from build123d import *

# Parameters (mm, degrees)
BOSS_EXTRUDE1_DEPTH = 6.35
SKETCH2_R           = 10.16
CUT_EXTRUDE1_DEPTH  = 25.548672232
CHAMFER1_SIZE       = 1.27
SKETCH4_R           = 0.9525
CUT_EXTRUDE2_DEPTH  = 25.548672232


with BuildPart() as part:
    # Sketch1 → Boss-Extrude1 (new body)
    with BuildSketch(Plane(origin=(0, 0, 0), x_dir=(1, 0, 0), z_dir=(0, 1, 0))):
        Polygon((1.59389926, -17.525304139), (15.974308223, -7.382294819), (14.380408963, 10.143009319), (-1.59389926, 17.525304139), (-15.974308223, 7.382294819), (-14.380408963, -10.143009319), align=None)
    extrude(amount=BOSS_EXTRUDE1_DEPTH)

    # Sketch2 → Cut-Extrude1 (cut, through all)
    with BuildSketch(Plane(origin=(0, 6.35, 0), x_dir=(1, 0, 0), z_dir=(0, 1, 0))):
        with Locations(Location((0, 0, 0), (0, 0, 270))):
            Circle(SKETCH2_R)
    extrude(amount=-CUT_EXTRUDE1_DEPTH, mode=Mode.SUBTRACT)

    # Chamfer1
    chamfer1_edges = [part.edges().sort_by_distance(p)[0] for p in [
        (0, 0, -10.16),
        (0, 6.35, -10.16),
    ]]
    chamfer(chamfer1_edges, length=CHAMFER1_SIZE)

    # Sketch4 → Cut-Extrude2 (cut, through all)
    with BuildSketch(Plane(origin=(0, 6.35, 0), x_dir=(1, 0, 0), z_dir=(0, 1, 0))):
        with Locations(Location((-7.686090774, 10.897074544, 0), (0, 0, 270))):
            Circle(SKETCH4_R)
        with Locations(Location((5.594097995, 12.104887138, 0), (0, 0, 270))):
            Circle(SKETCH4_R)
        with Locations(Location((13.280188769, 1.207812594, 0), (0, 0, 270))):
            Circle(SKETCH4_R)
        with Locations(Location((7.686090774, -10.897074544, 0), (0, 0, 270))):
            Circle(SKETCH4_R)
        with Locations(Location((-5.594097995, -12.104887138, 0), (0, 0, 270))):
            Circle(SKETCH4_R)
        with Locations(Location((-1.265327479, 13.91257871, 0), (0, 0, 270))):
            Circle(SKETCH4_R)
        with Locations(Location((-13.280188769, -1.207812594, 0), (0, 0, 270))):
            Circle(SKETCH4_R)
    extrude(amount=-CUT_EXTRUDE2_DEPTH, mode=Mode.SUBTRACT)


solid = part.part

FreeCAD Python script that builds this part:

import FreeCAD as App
import Part
import Sketcher

V = App.Vector
Q = App.Units.Quantity


def edges_at(feature, points):
    """Names of the edges that pass closest to the given points."""
    edges = feature.Shape.Edges
    near = lambda p: min(range(len(edges)), key=lambda i: edges[i].distToShape(Part.Vertex(*p))[0])
    return sorted({f"Edge{near(p) + 1}" for p in points})

doc = App.newDocument("Part")
body = doc.addObject("PartDesign::Body", "Body")

sketch1 = doc.addObject("Sketcher::SketchObject", "Sketch")
body.addObject(sketch1)
sketch1.AttachmentSupport = (doc.XZ_Plane, [""])
sketch1.MapMode = "FlatFace"
sketch1.addGeometry([
    Part.LineSegment(V(1.593899, 17.525304, 0), V(15.974308, 7.382295, 0)),
    Part.LineSegment(V(15.974308, 7.382295, 0), V(14.380409, -10.143009, 0)),
    Part.LineSegment(V(14.380409, -10.143009, 0), V(-1.593899, -17.525304, 0)),
    Part.LineSegment(V(-1.593899, -17.525304, 0), V(-15.974308, -7.382295, 0)),
    Part.LineSegment(V(-15.974308, -7.382295, 0), V(-14.380409, 10.143009, 0)),
    Part.LineSegment(V(-14.380409, 10.143009, 0), V(1.593899, 17.525304, 0)),
], False)
sketch1.addConstraint([
    Sketcher.Constraint("Coincident", 0, 2, 1, 1),
    Sketcher.Constraint("Coincident", 1, 2, 2, 1),
    Sketcher.Constraint("Coincident", 2, 2, 3, 1),
    Sketcher.Constraint("Coincident", 3, 2, 4, 1),
    Sketcher.Constraint("Coincident", 4, 2, 5, 1),
    Sketcher.Constraint("Coincident", 5, 2, 0, 1),
    Sketcher.Constraint("Symmetric", 0, 2, 3, 2, -1, 1),
    Sketcher.Constraint("Symmetric", 1, 2, 4, 2, -1, 1),
    Sketcher.Constraint("Symmetric", 2, 2, 5, 2, -1, 1),
    Sketcher.Constraint("Equal", 0, 1),
    Sketcher.Constraint("Equal", 1, 2),
    Sketcher.Constraint("DistanceX", 2, 2, -1, 1, 1.593899),
    Sketcher.Constraint("DistanceX", 1, 2, 0, 2, 1.593899),
    Sketcher.Constraint("DistanceY", 2, 2, 0, 2, 24.907599),
    Sketcher.Constraint("DistanceX", -1, 1, 0, 2, 15.974308),
])
pad1 = doc.addObject("PartDesign::Pad", "Pad")
body.addObject(pad1)
pad1.Profile = sketch1
pad1.Length = Q("0.25 in")
pad1.Reversed = True

sketch2 = doc.addObject("Sketcher::SketchObject", "Sketch001")
body.addObject(sketch2)
sketch2.AttachmentSupport = (doc.XZ_Plane, [""])
sketch2.MapMode = "FlatFace"
sketch2.AttachmentOffset = App.Placement(V(0, 0, -0.25 * 25.4), App.Rotation())
sketch2.addGeometry(Part.Circle(V(0, 0, 0), V(0, 0, 1), 10.16), False)
sketch2.addConstraint([
    Sketcher.Constraint("Coincident", 0, 3, -1, 1),
    Sketcher.Constraint("Diameter", 0, Q("0.8 in")),
])
pocket1 = doc.addObject("PartDesign::Pocket", "Pocket")
body.addObject(pocket1)
pocket1.Profile = sketch2
pocket1.Type = "ThroughAll"
pocket1.Reversed = True
doc.recompute()

chamfer = doc.addObject("PartDesign::Chamfer", "Chamfer")
body.addObject(chamfer)
chamfer.Base = (pocket1, edges_at(pocket1, [(0, 0, -10.16), (0, 6.35, -10.16)]))
chamfer.Size = Q("0.05 in")

sketch3 = doc.addObject("Sketcher::SketchObject", "Sketch002")
body.addObject(sketch3)
sketch3.AttachmentSupport = (doc.XZ_Plane, [""])
sketch3.MapMode = "FlatFace"
sketch3.AttachmentOffset = App.Placement(V(0, 0, -0.25 * 25.4), App.Rotation())
sketch3.addGeometry([
    Part.Circle(V(-7.686091, -10.897075, 0), V(0, 0, 1), 0.9525),
    Part.Circle(V(5.594098, -12.104887, 0), V(0, 0, 1), 0.9525),
    Part.Circle(V(13.280189, -1.207813, 0), V(0, 0, 1), 0.9525),
    Part.Circle(V(7.686091, 10.897075, 0), V(0, 0, 1), 0.9525),
    Part.Circle(V(-5.594098, 12.104887, 0), V(0, 0, 1), 0.9525),
    Part.Circle(V(-1.265327, -13.912579, 0), V(0, 0, 1), 0.9525),
    Part.Circle(V(-13.280189, 1.207813, 0), V(0, 0, 1), 0.9525),
], False)
sketch3.addConstraint([
    Sketcher.Constraint("Equal", 0, 1),
    Sketcher.Constraint("Equal", 1, 2),
    Sketcher.Constraint("Equal", 2, 3),
    Sketcher.Constraint("Equal", 3, 4),
    Sketcher.Constraint("Equal", 4, 5),
    Sketcher.Constraint("Equal", 5, 6),
    Sketcher.Constraint("Symmetric", 0, 3, 3, 3, -1, 1),
    Sketcher.Constraint("Symmetric", 1, 3, 4, 3, -1, 1),
    Sketcher.Constraint("Symmetric", 2, 3, 6, 3, -1, 1),
    Sketcher.Constraint("Diameter", 0, Q("0.075 in")),
    Sketcher.Constraint("DistanceY", 2, 3, 4, 3, 13.3127),
    Sketcher.Constraint("DistanceX", 0, 3, -1, 1, 7.686091),
    Sketcher.Constraint("DistanceX", -1, 1, 2, 3, 13.280189),
    Sketcher.Constraint("DistanceY", 5, 3, -1, 1, 13.912579),
    Sketcher.Constraint("DistanceX", 0, 3, 1, 3, 13.280189),
    Sketcher.Constraint("DistanceY", 0, 3, 2, 3, 9.689262),
    Sketcher.Constraint("DistanceY", 0, 3, 3, 3, 21.794149),
    Sketcher.Constraint("DistanceX", 5, 3, 3, 3, 8.951418),
])
pocket2 = doc.addObject("PartDesign::Pocket", "Pocket001")
body.addObject(pocket2)
pocket2.Profile = sketch3
pocket2.Type = "ThroughAll"
pocket2.Reversed = True

doc.recompute()
